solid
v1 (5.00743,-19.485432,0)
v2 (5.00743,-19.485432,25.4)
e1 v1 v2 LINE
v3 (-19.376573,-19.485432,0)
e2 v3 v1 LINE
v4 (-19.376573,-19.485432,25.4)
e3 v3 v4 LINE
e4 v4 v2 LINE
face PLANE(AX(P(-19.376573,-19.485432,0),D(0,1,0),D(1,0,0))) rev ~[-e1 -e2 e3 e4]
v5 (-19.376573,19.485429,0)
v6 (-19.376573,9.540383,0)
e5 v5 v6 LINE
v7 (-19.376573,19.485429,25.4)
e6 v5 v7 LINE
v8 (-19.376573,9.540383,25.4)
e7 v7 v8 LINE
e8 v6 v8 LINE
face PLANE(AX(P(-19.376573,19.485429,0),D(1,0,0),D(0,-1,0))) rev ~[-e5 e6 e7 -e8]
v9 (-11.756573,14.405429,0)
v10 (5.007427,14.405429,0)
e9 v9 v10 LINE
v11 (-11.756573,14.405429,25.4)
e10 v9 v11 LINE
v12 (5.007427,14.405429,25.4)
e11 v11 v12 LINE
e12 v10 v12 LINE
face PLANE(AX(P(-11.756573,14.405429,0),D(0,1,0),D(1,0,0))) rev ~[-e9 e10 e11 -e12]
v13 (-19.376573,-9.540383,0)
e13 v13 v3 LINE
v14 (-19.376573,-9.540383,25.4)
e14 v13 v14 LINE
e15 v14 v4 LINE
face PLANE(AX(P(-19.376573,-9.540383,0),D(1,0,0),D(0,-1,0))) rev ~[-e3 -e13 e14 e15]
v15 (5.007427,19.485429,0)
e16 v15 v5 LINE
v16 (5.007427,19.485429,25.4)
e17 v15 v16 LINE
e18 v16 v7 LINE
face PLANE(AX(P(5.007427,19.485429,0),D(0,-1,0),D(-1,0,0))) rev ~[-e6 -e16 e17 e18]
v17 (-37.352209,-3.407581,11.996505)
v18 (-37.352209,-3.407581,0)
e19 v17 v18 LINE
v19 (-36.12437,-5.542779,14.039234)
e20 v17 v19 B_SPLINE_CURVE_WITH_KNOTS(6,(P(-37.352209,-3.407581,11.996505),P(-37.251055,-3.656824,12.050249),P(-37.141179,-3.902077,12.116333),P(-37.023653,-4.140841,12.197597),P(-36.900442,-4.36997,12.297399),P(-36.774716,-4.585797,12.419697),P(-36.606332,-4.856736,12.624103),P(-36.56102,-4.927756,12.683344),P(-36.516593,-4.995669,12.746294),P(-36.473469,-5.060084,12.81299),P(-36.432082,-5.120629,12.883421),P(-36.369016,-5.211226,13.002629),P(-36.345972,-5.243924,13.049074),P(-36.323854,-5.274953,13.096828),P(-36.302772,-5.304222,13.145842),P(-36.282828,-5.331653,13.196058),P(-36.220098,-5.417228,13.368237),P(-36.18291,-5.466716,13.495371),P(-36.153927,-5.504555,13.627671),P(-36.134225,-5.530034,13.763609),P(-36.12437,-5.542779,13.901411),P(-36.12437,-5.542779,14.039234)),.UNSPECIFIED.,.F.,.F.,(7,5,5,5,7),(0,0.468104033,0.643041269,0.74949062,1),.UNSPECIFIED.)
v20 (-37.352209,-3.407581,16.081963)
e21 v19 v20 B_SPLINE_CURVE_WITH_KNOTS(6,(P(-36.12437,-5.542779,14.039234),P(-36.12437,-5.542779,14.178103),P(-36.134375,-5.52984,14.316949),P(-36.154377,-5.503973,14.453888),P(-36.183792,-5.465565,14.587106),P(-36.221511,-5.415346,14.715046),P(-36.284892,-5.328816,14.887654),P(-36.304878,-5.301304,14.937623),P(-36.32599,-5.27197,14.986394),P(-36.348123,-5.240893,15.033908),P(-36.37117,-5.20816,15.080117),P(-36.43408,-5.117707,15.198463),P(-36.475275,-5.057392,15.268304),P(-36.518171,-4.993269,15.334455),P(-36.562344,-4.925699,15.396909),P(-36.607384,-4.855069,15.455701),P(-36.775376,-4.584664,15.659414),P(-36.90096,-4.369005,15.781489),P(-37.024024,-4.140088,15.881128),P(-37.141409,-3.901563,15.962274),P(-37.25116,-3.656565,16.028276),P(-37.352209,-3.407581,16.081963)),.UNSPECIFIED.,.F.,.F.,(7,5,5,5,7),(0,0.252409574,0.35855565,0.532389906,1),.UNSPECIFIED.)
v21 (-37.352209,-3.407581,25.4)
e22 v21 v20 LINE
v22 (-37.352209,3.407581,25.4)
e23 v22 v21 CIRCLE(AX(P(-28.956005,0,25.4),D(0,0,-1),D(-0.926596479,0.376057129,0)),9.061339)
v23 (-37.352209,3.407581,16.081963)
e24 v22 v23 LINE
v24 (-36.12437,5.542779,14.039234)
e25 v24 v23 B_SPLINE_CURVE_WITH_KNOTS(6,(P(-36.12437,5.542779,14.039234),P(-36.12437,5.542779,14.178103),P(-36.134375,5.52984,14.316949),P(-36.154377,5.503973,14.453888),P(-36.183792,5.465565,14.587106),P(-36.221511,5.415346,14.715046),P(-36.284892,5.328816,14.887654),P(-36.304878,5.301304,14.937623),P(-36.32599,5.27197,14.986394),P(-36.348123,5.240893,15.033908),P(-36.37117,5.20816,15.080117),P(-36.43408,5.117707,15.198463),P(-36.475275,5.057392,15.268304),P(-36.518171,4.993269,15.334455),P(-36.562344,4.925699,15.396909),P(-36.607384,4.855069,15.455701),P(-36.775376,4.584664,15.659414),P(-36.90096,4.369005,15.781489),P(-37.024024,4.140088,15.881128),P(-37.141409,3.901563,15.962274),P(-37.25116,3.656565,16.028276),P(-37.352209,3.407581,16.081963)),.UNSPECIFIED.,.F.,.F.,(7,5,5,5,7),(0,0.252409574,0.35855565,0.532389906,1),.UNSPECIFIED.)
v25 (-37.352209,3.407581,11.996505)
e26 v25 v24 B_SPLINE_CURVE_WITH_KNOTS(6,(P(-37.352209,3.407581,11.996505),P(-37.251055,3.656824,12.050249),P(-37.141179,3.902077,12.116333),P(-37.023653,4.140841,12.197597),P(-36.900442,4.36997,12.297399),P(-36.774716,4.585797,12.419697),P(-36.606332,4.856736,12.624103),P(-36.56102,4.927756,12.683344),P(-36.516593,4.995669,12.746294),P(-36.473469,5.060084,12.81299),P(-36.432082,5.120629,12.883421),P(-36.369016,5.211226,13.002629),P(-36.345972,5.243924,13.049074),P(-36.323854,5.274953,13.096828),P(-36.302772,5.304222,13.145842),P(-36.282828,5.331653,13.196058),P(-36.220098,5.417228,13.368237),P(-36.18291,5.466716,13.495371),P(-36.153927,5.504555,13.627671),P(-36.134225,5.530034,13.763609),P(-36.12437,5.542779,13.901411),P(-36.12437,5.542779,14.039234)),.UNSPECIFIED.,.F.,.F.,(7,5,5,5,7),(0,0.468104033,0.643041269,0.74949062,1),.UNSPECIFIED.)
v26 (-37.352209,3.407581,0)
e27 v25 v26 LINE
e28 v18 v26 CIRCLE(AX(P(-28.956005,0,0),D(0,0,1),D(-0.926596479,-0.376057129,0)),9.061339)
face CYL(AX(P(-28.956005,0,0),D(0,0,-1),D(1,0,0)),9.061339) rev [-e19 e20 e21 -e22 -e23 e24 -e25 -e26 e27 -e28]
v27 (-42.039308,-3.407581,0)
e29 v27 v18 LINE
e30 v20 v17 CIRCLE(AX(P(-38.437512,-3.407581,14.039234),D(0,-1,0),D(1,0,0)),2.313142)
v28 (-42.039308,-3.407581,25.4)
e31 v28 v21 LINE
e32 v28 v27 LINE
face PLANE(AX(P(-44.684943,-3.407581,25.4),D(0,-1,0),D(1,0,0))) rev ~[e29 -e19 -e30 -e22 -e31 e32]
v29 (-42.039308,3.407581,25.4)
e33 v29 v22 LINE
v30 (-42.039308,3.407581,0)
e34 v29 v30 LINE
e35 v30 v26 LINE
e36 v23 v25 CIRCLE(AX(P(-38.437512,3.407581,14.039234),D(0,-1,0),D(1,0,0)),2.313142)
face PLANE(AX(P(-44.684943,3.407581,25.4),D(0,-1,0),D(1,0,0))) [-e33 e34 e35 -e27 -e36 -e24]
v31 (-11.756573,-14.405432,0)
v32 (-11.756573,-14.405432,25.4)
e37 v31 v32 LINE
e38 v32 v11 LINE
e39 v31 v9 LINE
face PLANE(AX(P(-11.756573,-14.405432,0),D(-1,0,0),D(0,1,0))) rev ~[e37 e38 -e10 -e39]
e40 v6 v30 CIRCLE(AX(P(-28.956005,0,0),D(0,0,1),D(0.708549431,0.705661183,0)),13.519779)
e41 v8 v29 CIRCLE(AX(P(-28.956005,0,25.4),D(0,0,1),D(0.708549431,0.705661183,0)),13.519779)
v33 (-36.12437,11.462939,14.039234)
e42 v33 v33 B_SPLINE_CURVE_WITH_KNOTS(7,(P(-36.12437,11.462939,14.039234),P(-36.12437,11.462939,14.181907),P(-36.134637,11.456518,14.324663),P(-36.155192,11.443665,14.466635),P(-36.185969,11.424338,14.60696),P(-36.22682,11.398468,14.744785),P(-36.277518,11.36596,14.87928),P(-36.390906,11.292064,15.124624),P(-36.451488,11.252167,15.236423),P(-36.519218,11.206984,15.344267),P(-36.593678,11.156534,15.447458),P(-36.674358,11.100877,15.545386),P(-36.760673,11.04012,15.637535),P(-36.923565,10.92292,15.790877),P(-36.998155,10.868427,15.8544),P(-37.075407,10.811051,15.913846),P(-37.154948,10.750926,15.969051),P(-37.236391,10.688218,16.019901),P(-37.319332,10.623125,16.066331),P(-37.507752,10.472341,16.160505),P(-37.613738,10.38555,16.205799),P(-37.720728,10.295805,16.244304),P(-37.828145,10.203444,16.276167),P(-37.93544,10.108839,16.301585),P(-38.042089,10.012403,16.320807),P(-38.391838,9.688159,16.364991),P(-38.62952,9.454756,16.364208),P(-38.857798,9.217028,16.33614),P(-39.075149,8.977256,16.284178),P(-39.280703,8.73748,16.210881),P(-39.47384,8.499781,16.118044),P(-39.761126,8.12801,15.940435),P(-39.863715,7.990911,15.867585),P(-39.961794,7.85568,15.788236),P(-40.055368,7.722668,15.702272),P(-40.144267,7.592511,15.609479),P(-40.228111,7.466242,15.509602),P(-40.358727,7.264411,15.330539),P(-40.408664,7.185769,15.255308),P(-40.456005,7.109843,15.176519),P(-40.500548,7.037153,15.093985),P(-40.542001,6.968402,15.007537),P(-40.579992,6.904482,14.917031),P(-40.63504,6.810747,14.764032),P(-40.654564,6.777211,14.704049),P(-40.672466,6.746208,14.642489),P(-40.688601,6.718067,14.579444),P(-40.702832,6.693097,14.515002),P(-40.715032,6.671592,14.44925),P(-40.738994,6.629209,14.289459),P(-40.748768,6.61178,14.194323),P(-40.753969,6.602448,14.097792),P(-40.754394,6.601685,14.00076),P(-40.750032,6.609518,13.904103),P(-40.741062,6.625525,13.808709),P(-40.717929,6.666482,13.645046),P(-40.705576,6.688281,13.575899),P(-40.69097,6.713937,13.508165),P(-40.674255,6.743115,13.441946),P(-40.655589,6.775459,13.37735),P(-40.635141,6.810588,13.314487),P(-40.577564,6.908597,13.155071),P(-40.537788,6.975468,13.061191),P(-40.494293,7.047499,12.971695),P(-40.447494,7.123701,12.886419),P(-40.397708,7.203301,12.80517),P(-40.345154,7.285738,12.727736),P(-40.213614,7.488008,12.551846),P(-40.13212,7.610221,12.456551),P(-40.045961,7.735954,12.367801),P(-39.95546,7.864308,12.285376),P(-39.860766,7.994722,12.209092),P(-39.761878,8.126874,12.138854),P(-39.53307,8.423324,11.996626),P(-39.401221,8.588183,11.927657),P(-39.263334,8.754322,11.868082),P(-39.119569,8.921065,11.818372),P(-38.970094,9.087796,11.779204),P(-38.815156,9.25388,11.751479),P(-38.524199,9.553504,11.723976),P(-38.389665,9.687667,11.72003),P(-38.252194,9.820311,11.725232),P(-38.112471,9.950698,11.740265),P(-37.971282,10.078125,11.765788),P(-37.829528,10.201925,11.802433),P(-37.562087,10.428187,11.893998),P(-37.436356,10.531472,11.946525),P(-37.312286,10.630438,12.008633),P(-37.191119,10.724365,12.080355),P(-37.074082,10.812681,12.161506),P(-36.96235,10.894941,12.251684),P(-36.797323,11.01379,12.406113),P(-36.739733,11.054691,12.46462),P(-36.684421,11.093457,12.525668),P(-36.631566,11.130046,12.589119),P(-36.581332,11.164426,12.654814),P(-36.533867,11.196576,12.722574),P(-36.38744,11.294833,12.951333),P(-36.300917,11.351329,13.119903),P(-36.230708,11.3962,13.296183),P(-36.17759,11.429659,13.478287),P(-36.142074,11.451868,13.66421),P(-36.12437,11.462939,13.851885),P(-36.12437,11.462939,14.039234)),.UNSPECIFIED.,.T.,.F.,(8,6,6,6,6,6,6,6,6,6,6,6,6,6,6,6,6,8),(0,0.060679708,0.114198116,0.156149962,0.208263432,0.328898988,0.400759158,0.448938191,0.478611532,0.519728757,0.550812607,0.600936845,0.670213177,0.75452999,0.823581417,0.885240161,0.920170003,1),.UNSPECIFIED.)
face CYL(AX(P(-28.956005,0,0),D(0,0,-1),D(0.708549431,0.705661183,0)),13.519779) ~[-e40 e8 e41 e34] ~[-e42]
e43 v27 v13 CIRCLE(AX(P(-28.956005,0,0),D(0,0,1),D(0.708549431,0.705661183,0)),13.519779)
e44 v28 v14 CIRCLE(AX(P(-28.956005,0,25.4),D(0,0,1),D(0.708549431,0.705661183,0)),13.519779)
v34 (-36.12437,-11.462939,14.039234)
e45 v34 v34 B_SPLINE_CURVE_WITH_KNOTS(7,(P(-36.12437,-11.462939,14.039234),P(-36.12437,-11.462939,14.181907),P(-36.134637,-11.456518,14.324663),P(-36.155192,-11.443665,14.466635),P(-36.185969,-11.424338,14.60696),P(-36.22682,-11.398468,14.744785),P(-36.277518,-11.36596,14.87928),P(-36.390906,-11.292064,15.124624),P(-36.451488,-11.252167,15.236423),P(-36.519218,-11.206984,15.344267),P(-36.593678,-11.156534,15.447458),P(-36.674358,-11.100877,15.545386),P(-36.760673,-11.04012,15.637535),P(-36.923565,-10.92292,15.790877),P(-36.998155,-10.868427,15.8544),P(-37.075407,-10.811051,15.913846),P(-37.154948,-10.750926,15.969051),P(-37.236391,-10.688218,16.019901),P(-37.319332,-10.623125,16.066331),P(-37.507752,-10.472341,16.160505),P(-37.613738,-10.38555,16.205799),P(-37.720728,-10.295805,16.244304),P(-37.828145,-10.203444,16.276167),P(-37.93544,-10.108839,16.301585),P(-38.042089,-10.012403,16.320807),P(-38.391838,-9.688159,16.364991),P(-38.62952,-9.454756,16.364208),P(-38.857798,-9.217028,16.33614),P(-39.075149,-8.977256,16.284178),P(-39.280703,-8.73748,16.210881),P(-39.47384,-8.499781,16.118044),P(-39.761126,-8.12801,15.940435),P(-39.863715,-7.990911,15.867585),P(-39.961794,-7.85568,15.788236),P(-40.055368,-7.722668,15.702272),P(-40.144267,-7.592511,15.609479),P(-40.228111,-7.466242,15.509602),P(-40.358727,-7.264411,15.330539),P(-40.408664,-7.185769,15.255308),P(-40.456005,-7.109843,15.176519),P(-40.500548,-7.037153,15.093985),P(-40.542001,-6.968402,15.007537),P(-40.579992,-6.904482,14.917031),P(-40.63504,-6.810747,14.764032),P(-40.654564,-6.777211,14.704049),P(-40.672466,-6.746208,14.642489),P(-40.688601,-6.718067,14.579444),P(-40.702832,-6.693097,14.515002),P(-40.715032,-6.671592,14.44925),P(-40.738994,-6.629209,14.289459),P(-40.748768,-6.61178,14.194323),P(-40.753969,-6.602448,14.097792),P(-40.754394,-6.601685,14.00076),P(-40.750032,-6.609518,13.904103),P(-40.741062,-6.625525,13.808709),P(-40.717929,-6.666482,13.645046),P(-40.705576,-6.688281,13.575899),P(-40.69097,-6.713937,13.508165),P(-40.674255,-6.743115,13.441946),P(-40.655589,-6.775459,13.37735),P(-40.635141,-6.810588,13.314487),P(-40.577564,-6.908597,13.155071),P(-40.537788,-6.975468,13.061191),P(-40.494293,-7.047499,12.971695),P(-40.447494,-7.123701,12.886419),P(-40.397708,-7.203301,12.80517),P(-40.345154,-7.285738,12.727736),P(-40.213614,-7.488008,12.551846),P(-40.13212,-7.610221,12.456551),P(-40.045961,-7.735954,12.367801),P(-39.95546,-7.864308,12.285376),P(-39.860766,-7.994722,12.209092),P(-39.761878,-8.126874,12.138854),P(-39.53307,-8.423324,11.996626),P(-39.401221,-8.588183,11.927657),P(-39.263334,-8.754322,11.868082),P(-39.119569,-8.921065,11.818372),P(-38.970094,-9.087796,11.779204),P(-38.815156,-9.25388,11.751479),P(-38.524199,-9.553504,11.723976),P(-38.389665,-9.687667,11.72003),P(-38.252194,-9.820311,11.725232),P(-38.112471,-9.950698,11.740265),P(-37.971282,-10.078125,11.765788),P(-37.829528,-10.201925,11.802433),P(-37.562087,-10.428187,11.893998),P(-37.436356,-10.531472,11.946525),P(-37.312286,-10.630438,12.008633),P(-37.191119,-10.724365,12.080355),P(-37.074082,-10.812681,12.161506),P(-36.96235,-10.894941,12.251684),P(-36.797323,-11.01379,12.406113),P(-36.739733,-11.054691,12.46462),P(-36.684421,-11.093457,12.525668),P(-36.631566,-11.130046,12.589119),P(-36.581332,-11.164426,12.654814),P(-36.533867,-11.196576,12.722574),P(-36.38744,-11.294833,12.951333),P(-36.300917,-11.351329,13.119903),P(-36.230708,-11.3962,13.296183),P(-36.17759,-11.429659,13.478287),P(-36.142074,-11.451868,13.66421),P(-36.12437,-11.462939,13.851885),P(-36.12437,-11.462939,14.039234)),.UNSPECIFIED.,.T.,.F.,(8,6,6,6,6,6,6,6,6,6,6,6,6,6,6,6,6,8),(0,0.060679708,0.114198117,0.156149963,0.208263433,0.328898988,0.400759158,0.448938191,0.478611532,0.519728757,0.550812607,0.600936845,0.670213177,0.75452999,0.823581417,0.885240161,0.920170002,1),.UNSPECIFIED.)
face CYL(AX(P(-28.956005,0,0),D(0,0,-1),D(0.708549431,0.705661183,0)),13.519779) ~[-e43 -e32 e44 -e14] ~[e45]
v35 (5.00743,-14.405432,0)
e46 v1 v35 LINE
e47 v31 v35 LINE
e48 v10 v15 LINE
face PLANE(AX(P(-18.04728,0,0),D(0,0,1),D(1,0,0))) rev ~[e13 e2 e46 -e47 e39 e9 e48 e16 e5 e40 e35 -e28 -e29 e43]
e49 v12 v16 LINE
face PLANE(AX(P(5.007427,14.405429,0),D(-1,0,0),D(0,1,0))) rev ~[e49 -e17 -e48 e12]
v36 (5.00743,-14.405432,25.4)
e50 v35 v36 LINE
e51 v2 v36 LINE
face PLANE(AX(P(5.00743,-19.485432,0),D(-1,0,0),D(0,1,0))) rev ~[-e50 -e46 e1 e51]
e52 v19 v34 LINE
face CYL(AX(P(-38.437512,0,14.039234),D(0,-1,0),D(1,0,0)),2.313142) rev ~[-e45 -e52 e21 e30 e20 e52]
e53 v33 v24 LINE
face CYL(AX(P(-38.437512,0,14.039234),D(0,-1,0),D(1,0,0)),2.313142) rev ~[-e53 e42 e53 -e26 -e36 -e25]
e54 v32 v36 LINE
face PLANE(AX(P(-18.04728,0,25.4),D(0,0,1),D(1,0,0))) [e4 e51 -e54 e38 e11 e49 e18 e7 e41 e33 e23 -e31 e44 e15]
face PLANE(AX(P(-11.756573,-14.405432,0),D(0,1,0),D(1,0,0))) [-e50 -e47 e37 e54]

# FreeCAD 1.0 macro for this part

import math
import FreeCAD as App
import Part
import Sketcher

V = App.Vector
Q = App.Units.Quantity


def add_polygon(sketch, points):
    """Adds a closed chain of lines whose ends are joined by coincident constraints."""
    first, n = sketch.GeometryCount, len(points)
    for a, b in zip(points, points[1:] + points[:1]):
        sketch.addGeometry(Part.LineSegment(App.Vector(*a, 0), App.Vector(*b, 0)), False)
    for i in range(n):
        sketch.addConstraint(Sketcher.Constraint("Coincident", first + i, 2, first + (i + 1) % n, 1))

doc = App.newDocument("Part")
body = doc.addObject("PartDesign::Body", "Body")

# Sketch on XY plane
sketch1 = body.newObject("Sketcher::SketchObject", "Sketch")
sketch1.AttachmentSupport = (doc.getObject("XY_Plane"), [""])
sketch1.MapMode = "FlatFace"
sketch1.addGeometry([
    Part.LineSegment(V(-19.376573, -19.485432, 0), V(5.00743, -19.485432, 0)),  # 0
    Part.LineSegment(V(5.00743, -19.485432, 0), V(5.00743, -14.405432, 0)),  # 1
    Part.LineSegment(V(5.00743, -14.405432, 0), V(-11.756573, -14.405432, 0)),  # 2
    Part.LineSegment(V(-11.756573, -14.405432, 0), V(-11.756573, 14.405429, 0)),  # 3
    Part.LineSegment(V(-11.756573, 14.405429, 0), V(5.007427, 14.405429, 0)),  # 4
    Part.LineSegment(V(5.007427, 14.405429, 0), V(5.007427, 19.485429, 0)),  # 5
    Part.LineSegment(V(5.007427, 19.485429, 0), V(-19.376573, 19.485429, 0)),  # 6
    Part.LineSegment(V(-19.376573, 19.485429, 0), V(-19.376573, 9.540383, 0)),  # 7
    Part.ArcOfCircle(Part.Circle(V(-28.956005, 0, 0), V(0, 0, 1), 13.519779), math.radians(44.882985), math.radians(315.117015)),  # 8
    Part.LineSegment(V(-19.376573, -9.540383, 0), V(-19.376573, -19.485432, 0)),  # 9
    Part.Circle(V(-28.956005, 0, 0), V(0, 0, 1), 9.061339),  # 10
], False)
sketch1.addConstraint([
    Sketcher.Constraint("Coincident", 0, 2, 1, 1),
    Sketcher.Constraint("Coincident", 1, 2, 2, 1),
    Sketcher.Constraint("Coincident", 2, 2, 3, 1),
    Sketcher.Constraint("Coincident", 3, 2, 4, 1),
    Sketcher.Constraint("Coincident", 4, 2, 5, 1),
    Sketcher.Constraint("Coincident", 5, 2, 6, 1),
    Sketcher.Constraint("Coincident", 6, 2, 7, 1),
    Sketcher.Constraint("Coincident", 7, 2, 8, 1),
    Sketcher.Constraint("Coincident", 8, 2, 9, 1),
    Sketcher.Constraint("Coincident", 9, 2, 0, 1),
    Sketcher.Constraint("Horizontal", 0),
    Sketcher.Constraint("Vertical", 1),
    Sketcher.Constraint("Horizontal", 2),
    Sketcher.Constraint("Vertical", 3),
    Sketcher.Constraint("Horizontal", 4),
    Sketcher.Constraint("Vertical", 5),
    Sketcher.Constraint("Horizontal", 6),
    Sketcher.Constraint("Vertical", 7),
    Sketcher.Constraint("Vertical", 9),
    Sketcher.Constraint("Coincident", 10, 3, 8, 3),
    Sketcher.Constraint("Symmetric", 1, 2, 4, 2, -1),
    Sketcher.Constraint("Symmetric", 7, 2, 8, 2, -1),
    Sketcher.Constraint("Equal", 1, 5),
    Sketcher.Constraint("DistanceY", 1, 1, 1, 2, Q("0.2 in")),
    Sketcher.Constraint("DistanceX", 0, 1, 0, 2, Q("0.9600001 in")),
    Sketcher.Constraint("DistanceX", 2, 2, 2, 1, Q("0.6600001 in")),
    Sketcher.Constraint("DistanceX", 8, 3, -1, 1, Q("1.1400002 in")),
    Sketcher.Constraint("Radius", 8, 13.519779),
    Sketcher.Constraint("Diameter", 10, 18.122677),
    Sketcher.Constraint("DistanceY", 3, 1, 3, 2, 28.810861),
    Sketcher.Constraint("DistanceY", 9, 2, 9, 1, 9.945049),
])
pad1 = body.newObject("PartDesign::Pad", "Pad")
pad1.Profile = sketch1
pad1.Length = Q("1 in")

# Sketch on XY plane
sketch2 = body.newObject("Sketcher::SketchObject", "Sketch001")
sketch2.AttachmentSupport = (doc.getObject("XY_Plane"), [""])
sketch2.MapMode = "FlatFace"
sketch2.AttachmentOffset = App.Placement(V(0, 0, 1 * 25.4), App.Rotation())
add_polygon(sketch2, [(-44.684943, 3.407581), (-44.684943, -3.407581), (-31.349745, -3.407581), (-31.349745, 3.407581)])  # lines 0-3
sketch2.addConstraint([
    Sketcher.Constraint("Vertical", 0),
    Sketcher.Constraint("Horizontal", 1),
    Sketcher.Constraint("Vertical", 2),
    Sketcher.Constraint("Horizontal", 3),
    Sketcher.Constraint("DistanceX", 1, 1, 1, 2, 13.335198),
    Sketcher.Constraint("DistanceY", 0, 2, 0, 1, 6.815162),
    Sketcher.Constraint("DistanceY", 0, 2, -1, 1, 3.407581),
    Sketcher.Constraint("DistanceX", 0, 2, -1, 1, 44.684943),
])
pocket1 = body.newObject("PartDesign::Pocket", "Pocket")
pocket1.Profile = sketch2
pocket1.Length = Q("1 in")

# Sketch on XZ plane
sketch3 = body.newObject("Sketcher::SketchObject", "Sketch002")
sketch3.AttachmentSupport = (doc.getObject("XZ_Plane"), [""])
sketch3.MapMode = "FlatFace"
sketch3.addGeometry(Part.Circle(V(-38.437512, 14.039234, 0), V(0, 0, 1), 2.313142), False)
sketch3.addConstraint([
    Sketcher.Constraint("Diameter", 0, 4.626283),
    Sketcher.Constraint("DistanceX", 0, 3, -1, 1, 38.437512),
    Sketcher.Constraint("DistanceY", -1, 1, 0, 3, 14.039234),
])
pocket2 = body.newObject("PartDesign::Pocket", "Pocket001")
pocket2.Profile = sketch3
pocket2.Length = Q("10 in")
pocket2.Midplane = True

doc.recompute()
